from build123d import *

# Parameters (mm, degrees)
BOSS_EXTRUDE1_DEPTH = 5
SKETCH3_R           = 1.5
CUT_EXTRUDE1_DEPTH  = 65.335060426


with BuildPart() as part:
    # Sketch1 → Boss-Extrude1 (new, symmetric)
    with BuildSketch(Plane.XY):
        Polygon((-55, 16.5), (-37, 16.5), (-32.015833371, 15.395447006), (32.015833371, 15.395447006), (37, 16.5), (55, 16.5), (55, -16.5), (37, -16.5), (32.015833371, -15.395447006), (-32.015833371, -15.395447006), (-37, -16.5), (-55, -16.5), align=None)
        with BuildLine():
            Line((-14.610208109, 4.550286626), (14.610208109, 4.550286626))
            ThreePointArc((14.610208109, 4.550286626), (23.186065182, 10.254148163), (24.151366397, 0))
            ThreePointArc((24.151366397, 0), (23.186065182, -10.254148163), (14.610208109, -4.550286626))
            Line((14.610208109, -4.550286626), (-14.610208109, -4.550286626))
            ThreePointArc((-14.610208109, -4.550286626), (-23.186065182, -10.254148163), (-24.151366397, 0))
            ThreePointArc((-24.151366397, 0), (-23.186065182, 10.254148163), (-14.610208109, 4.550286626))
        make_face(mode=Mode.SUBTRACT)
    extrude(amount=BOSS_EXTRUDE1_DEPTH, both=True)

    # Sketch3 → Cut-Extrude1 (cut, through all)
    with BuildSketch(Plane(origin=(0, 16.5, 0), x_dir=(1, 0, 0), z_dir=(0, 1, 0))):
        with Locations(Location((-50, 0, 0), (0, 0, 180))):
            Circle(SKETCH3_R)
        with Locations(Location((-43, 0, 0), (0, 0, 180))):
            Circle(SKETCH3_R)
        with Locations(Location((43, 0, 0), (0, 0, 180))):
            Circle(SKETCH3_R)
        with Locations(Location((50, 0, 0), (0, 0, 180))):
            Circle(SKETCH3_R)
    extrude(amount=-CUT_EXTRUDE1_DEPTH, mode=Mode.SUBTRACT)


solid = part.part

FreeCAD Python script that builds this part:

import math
import FreeCAD as App
import Part
import Sketcher

doc = App.newDocument("Part")
body = doc.addObject("PartDesign::Body", "Body")

sketch1 = body.newObject("Sketcher::SketchObject", "Sketch")
sketch1.AttachmentSupport = (doc.getObject("XY_Plane"), [""])
sketch1.MapMode = "FlatFace"
sketch1.addGeometry(Part.LineSegment(App.Vector(-37, 16.5, 0), App.Vector(-55, 16.5, 0)), False)
sketch1.addGeometry(Part.LineSegment(App.Vector(-55, 16.5, 0), App.Vector(-55, -16.5, 0)), False)
sketch1.addGeometry(Part.LineSegment(App.Vector(-55, -16.5, 0), App.Vector(-37, -16.5, 0)), False)
sketch1.addGeometry(Part.LineSegment(App.Vector(-37, -16.5, 0), App.Vector(-32.015833, -15.395447, 0)), False)
sketch1.addGeometry(Part.LineSegment(App.Vector(-32.015833, -15.395447, 0), App.Vector(32.015833, -15.395447, 0)), False)
sketch1.addGeometry(Part.LineSegment(App.Vector(32.015833, -15.395447, 0), App.Vector(37, -16.5, 0)), False)
sketch1.addGeometry(Part.LineSegment(App.Vector(37, -16.5, 0), App.Vector(55, -16.5, 0)), False)
sketch1.addGeometry(Part.LineSegment(App.Vector(55, -16.5, 0), App.Vector(55, 16.5, 0)), False)
sketch1.addGeometry(Part.LineSegment(App.Vector(55, 16.5, 0), App.Vector(37, 16.5, 0)), False)
sketch1.addGeometry(Part.LineSegment(App.Vector(37, 16.5, 0), App.Vector(32.015833, 15.395447, 0)), False)
sketch1.addGeometry(Part.LineSegment(App.Vector(32.015833, 15.395447, 0), App.Vector(-32.015833, 15.395447, 0)), False)
sketch1.addGeometry(Part.LineSegment(App.Vector(-32.015833, 15.395447, 0), App.Vector(-37, 16.5, 0)), False)
sketch1.addGeometry(Part.LineSegment(App.Vector(-14.610208, 4.550287, 0), App.Vector(14.610208, 4.550287, 0)), False)
sketch1.addGeometry(Part.ArcOfCircle(Part.Circle(App.Vector(20.603282, 4.838501, 0), App.Vector(0, 0, 1), 6), math.radians(-53.747315), math.radians(182.753308)), False)
sketch1.addGeometry(Part.ArcOfCircle(Part.Circle(App.Vector(20.603282, -4.838501, 0), App.Vector(0, 0, 1), 6), math.radians(177.246692), math.radians(413.747315)), False)
sketch1.addGeometry(Part.LineSegment(App.Vector(14.610208, -4.550287, 0), App.Vector(-14.610208, -4.550287, 0)), False)
sketch1.addGeometry(Part.ArcOfCircle(Part.Circle(App.Vector(-20.603282, -4.838501, 0), App.Vector(0, 0, 1), 6), math.radians(126.252685), math.radians(362.753308)), False)
sketch1.addGeometry(Part.ArcOfCircle(Part.Circle(App.Vector(-20.603282, 4.838501, 0), App.Vector(0, 0, 1), 6), math.radians(-2.753308), math.radians(233.747315)), False)
sketch1.addConstraint(Sketcher.Constraint("Coincident", 0, 2, 1, 1))
sketch1.addConstraint(Sketcher.Constraint("Coincident", 1, 2, 2, 1))
sketch1.addConstraint(Sketcher.Constraint("Coincident", 2, 2, 3, 1))
sketch1.addConstraint(Sketcher.Constraint("Coincident", 3, 2, 4, 1))
sketch1.addConstraint(Sketcher.Constraint("Coincident", 4, 2, 5, 1))
sketch1.addConstraint(Sketcher.Constraint("Coincident", 5, 2, 6, 1))
sketch1.addConstraint(Sketcher.Constraint("Coincident", 6, 2, 7, 1))
sketch1.addConstraint(Sketcher.Constraint("Coincident", 7, 2, 8, 1))
sketch1.addConstraint(Sketcher.Constraint("Coincident", 8, 2, 9, 1))
sketch1.addConstraint(Sketcher.Constraint("Coincident", 9, 2, 10, 1))
sketch1.addConstraint(Sketcher.Constraint("Coincident", 10, 2, 11, 1))
sketch1.addConstraint(Sketcher.Constraint("Coincident", 11, 2, 0, 1))
sketch1.addConstraint(Sketcher.Constraint("Coincident", 12, 2, 13, 2))
sketch1.addConstraint(Sketcher.Constraint("Coincident", 13, 1, 14, 2))
sketch1.addConstraint(Sketcher.Constraint("Coincident", 14, 1, 15, 1))
sketch1.addConstraint(Sketcher.Constraint("Coincident", 15, 2, 16, 2))
sketch1.addConstraint(Sketcher.Constraint("Coincident", 16, 1, 17, 2))
sketch1.addConstraint(Sketcher.Constraint("Coincident", 17, 1, 12, 1))
sketch1.addConstraint(Sketcher.Constraint("Horizontal", 0))
sketch1.addConstraint(Sketcher.Constraint("Vertical", 1))
sketch1.addConstraint(Sketcher.Constraint("Horizontal", 2))
sketch1.addConstraint(Sketcher.Constraint("Horizontal", 4))
sketch1.addConstraint(Sketcher.Constraint("Horizontal", 6))
sketch1.addConstraint(Sketcher.Constraint("Vertical", 7))
sketch1.addConstraint(Sketcher.Constraint("Horizontal", 8))
sketch1.addConstraint(Sketcher.Constraint("Horizontal", 10))
sketch1.addConstraint(Sketcher.Constraint("Horizontal", 12))
sketch1.addConstraint(Sketcher.Constraint("Horizontal", 15))
sketch1.addConstraint(Sketcher.Constraint("Equal", 13, 14))
sketch1.addConstraint(Sketcher.Constraint("Equal", 14, 16))
sketch1.addConstraint(Sketcher.Constraint("Equal", 16, 17))
sketch1.addConstraint(Sketcher.Constraint("Symmetric", 13, 3, 16, 3, -1, 1))
sketch1.addConstraint(Sketcher.Constraint("Symmetric", 14, 3, 17, 3, -1, 1))
sketch1.addConstraint(Sketcher.Constraint("Symmetric", 0, 2, 6, 2, -1, 1))
sketch1.addConstraint(Sketcher.Constraint("Symmetric", 2, 2, 8, 2, -1, 1))
sketch1.addConstraint(Sketcher.Constraint("Symmetric", 3, 2, 9, 2, -1, 1))
sketch1.addConstraint(Sketcher.Constraint("Symmetric", 14, 3, 16, 3, -2))
sketch1.addConstraint(Sketcher.Constraint("Symmetric", 2, 2, 5, 2, -2))
sketch1.addConstraint(Sketcher.Constraint("Parallel", 5, 11))
sketch1.addConstraint(Sketcher.Constraint("Vertical", 4, 2, 9, 2))
sketch1.addConstraint(Sketcher.Constraint("Vertical", 3, 2, 10, 2))
sketch1.addConstraint(Sketcher.Constraint("Vertical", 12, 2, 14, 1))
sketch1.addConstraint(Sketcher.Constraint("Radius", 13, 6.0))
sketch1.addConstraint(Sketcher.Constraint("DistanceX", 0, 2, 0, 1, 18.0))
sketch1.addConstraint(Sketcher.Constraint("DistanceY", 1, 2, 1, 1, 33.0))
sketch1.addConstraint(Sketcher.Constraint("DistanceX", 0, 2, -1, 1, 55.0))
sketch1.addConstraint(Sketcher.Constraint("DistanceY", -1, 1, 13, 3, 4.838501))
sketch1.addConstraint(Sketcher.Constraint("Distance", 3, 5.105091))
sketch1.addConstraint(Sketcher.Constraint("DistanceX", 4, 1, 4, 2, 64.031667))
sketch1.addConstraint(Sketcher.Constraint("DistanceX", 12, 1, 12, 2, 29.220416))
sketch1.addConstraint(Sketcher.Constraint("DistanceX", -1, 1, 13, 3, 20.603282))
pad1 = body.newObject("PartDesign::Pad", "Pad")
pad1.Profile = sketch1
pad1.Length = 10
pad1.Midplane = True

sketch2 = body.newObject("Sketcher::SketchObject", "Sketch001")
sketch2.AttachmentSupport = (doc.getObject("XZ_Plane"), [""])
sketch2.MapMode = "FlatFace"
sketch2.AttachmentOffset = App.Placement(App.Vector(0, 0, -16.5), App.Rotation())
sketch2.addGeometry(Part.Circle(App.Vector(-50, 0, 0), App.Vector(0, 0, 1), 1.5), False)
sketch2.addGeometry(Part.Circle(App.Vector(-43, 0, 0), App.Vector(0, 0, 1), 1.5), False)
sketch2.addGeometry(Part.Circle(App.Vector(43, 0, 0), App.Vector(0, 0, 1), 1.5), False)
sketch2.addGeometry(Part.Circle(App.Vector(50, 0, 0), App.Vector(0, 0, 1), 1.5), False)
sketch2.addConstraint(Sketcher.Constraint("Equal", 0, 1))
sketch2.addConstraint(Sketcher.Constraint("Equal", 1, 2))
sketch2.addConstraint(Sketcher.Constraint("Equal", 2, 3))
sketch2.addConstraint(Sketcher.Constraint("Symmetric", 1, 3, 2, 3, -1, 1))
sketch2.addConstraint(Sketcher.Constraint("Symmetric", 0, 3, 3, 3, -1, 1))
sketch2.addConstraint(Sketcher.Constraint("PointOnObject", 0, 3, -1))
sketch2.addConstraint(Sketcher.Constraint("PointOnObject", 1, 3, -1))
sketch2.addConstraint(Sketcher.Constraint("Diameter", 0, 3.0))
sketch2.addConstraint(Sketcher.Constraint("DistanceX", 0, 3, -1, 1, 50.0))
sketch2.addConstraint(Sketcher.Constraint("DistanceX", 1, 3, -1, 1, 43.0))
pocket1 = body.newObject("PartDesign::Pocket", "Pocket")
pocket1.Profile = sketch2
pocket1.Type = "ThroughAll"
pocket1.Reversed = True

doc.recompute()
